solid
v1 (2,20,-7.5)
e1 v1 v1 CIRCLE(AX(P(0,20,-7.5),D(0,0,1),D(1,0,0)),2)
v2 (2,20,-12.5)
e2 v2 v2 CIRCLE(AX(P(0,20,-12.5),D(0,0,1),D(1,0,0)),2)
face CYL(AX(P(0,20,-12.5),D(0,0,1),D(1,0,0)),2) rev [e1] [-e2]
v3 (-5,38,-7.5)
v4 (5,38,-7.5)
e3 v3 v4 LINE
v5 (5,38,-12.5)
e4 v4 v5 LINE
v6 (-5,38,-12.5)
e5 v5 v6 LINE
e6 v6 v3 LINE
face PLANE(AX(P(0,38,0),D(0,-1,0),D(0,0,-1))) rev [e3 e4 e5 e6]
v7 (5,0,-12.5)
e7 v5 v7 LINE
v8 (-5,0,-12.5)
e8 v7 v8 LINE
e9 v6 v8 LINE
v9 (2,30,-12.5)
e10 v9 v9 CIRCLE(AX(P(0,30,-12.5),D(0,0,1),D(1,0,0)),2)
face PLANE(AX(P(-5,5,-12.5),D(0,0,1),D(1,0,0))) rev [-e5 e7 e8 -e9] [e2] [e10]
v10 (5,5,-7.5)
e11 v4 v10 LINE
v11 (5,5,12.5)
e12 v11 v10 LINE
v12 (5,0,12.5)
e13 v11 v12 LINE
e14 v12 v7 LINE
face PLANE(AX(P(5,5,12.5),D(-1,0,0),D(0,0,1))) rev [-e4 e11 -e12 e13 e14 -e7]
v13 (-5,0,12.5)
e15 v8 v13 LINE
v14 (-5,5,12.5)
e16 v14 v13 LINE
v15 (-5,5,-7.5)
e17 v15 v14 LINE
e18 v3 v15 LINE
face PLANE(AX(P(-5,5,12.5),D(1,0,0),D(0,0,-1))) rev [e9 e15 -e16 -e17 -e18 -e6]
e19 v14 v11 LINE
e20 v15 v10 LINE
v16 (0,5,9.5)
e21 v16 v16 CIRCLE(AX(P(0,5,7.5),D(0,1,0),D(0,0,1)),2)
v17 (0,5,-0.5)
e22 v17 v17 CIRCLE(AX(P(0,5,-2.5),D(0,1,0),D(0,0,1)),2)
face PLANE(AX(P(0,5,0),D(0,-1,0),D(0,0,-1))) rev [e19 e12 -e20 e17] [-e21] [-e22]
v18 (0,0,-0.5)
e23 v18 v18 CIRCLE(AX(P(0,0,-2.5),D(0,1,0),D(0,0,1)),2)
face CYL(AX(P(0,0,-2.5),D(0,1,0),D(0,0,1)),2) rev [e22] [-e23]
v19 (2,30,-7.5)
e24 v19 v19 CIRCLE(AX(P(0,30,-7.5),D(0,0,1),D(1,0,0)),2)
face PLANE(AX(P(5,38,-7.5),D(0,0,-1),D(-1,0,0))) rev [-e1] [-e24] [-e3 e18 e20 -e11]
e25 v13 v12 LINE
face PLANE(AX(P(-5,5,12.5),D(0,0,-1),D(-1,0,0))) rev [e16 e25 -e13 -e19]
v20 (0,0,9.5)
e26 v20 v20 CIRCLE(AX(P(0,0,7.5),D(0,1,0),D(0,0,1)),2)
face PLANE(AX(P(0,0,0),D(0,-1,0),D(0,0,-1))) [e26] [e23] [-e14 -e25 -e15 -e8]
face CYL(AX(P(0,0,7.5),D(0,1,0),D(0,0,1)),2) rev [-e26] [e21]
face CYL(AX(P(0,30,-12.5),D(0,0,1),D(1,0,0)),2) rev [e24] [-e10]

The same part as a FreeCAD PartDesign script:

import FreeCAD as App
import Part
import Sketcher
from FreeCAD import Vector


def add_polygon(sketch, points):
    """Adds a closed chain of lines whose ends are joined by coincident constraints."""
    first, n = sketch.GeometryCount, len(points)
    for a, b in zip(points, points[1:] + points[:1]):
        sketch.addGeometry(Part.LineSegment(App.Vector(*a, 0), App.Vector(*b, 0)), False)
    for i in range(n):
        sketch.addConstraint(Sketcher.Constraint("Coincident", first + i, 2, first + (i + 1) % n, 1))

doc = App.newDocument("Part")
body = doc.addObject("PartDesign::Body", "Body")

sketch1 = doc.addObject("Sketcher::SketchObject", "Sketch")
body.addObject(sketch1)
sketch1.AttachmentSupport = (doc.XZ_Plane, [""])
sketch1.MapMode = "FlatFace"
add_polygon(sketch1, [(-5, -12.5), (-5, 12.5), (5, 12.5), (5, -12.5)])
sketch1.addConstraint([
    Sketcher.Constraint("Vertical", 0),
    Sketcher.Constraint("Horizontal", 1),
    Sketcher.Constraint("Vertical", 2),
    Sketcher.Constraint("Horizontal", 3),
    Sketcher.Constraint("Symmetric", 0, 2, 2, 2, -1, 1),
    Sketcher.Constraint("DistanceX", 1, 1, 1, 2, 10.0),
    Sketcher.Constraint("DistanceY", 0, 1, 0, 2, 25.0),
])
pad1 = doc.addObject("PartDesign::Pad", "Pad")
body.addObject(pad1)
pad1.Profile = sketch1
pad1.Length = 5
pad1.Reversed = True

sketch2 = doc.addObject("Sketcher::SketchObject", "Sketch001")
body.addObject(sketch2)
sketch2.AttachmentSupport = (doc.XZ_Plane, [""])
sketch2.MapMode = "FlatFace"
sketch2.AttachmentOffset = App.Placement(Vector(0, 0, -5), App.Rotation())
add_polygon(sketch2, [(-5, -12.5), (-5, -7.5), (5, -7.5), (5, -12.5)])
sketch2.addConstraint([
    Sketcher.Constraint("Vertical", 0),
    Sketcher.Constraint("Horizontal", 1),
    Sketcher.Constraint("Vertical", 2),
    Sketcher.Constraint("Horizontal", 3),
    Sketcher.Constraint("DistanceX", 1, 1, 1, 2, 10.0),
    Sketcher.Constraint("DistanceY", 0, 1, 0, 2, 5.0),
    Sketcher.Constraint("DistanceX", 0, 2, -1, 1, 5.0),
    Sketcher.Constraint("DistanceY", 0, 2, -1, 1, 7.5),
])
pad2 = doc.addObject("PartDesign::Pad", "Pad001")
body.addObject(pad2)
pad2.Profile = sketch2
pad2.Length = 33
pad2.Reversed = True

sketch3 = doc.addObject("Sketcher::SketchObject", "Sketch002")
body.addObject(sketch3)
sketch3.AttachmentSupport = (doc.XZ_Plane, [""])
sketch3.MapMode = "FlatFace"
sketch3.AttachmentOffset = App.Placement(Vector(0, 0, -5), App.Rotation())
sketch3.addGeometry([
    Part.Circle(Vector(0, -2.5, 0), Vector(0, 0, 1), 2),
    Part.Circle(Vector(0, 7.5, 0), Vector(0, 0, 1), 2),
], False)
sketch3.addConstraint([
    Sketcher.Constraint("Equal", 0, 1),
    Sketcher.Constraint("PointOnObject", 0, 3, -2),
    Sketcher.Constraint("PointOnObject", 1, 3, -2),
    Sketcher.Constraint("Diameter", 0, 4.0),
    Sketcher.Constraint("DistanceY", 0, 3, 1, 3, 10.0),
    Sketcher.Constraint("DistanceY", 0, 3, -1, 1, 2.5),
])
pocket1 = doc.addObject("PartDesign::Pocket", "Pocket")
body.addObject(pocket1)
pocket1.Profile = sketch3
pocket1.Type = "ThroughAll"
pocket1.Reversed = True

sketch4 = doc.addObject("Sketcher::SketchObject", "Sketch003")
body.addObject(sketch4)
sketch4.AttachmentSupport = (doc.XY_Plane, [""])
sketch4.MapMode = "FlatFace"
sketch4.AttachmentOffset = App.Placement(Vector(0, 0, -7.5), App.Rotation())
sketch4.addGeometry([
    Part.Circle(Vector(0, 30, 0), Vector(0, 0, 1), 2),
    Part.Circle(Vector(0, 20, 0), Vector(0, 0, 1), 2),
], False)
sketch4.addConstraint([
    Sketcher.Constraint("Equal", 0, 1),
    Sketcher.Constraint("PointOnObject", 0, 3, -2),
    Sketcher.Constraint("PointOnObject", 1, 3, -2),
    Sketcher.Constraint("Diameter", 0, 4.0),
    Sketcher.Constraint("DistanceY", -1, 1, 0, 3, 30.0),
    Sketcher.Constraint("DistanceY", -1, 1, 1, 3, 20.0),
])
pocket2 = doc.addObject("PartDesign::Pocket", "Pocket001")
body.addObject(pocket2)
pocket2.Profile = sketch4
pocket2.Type = "ThroughAll"

doc.recompute()
